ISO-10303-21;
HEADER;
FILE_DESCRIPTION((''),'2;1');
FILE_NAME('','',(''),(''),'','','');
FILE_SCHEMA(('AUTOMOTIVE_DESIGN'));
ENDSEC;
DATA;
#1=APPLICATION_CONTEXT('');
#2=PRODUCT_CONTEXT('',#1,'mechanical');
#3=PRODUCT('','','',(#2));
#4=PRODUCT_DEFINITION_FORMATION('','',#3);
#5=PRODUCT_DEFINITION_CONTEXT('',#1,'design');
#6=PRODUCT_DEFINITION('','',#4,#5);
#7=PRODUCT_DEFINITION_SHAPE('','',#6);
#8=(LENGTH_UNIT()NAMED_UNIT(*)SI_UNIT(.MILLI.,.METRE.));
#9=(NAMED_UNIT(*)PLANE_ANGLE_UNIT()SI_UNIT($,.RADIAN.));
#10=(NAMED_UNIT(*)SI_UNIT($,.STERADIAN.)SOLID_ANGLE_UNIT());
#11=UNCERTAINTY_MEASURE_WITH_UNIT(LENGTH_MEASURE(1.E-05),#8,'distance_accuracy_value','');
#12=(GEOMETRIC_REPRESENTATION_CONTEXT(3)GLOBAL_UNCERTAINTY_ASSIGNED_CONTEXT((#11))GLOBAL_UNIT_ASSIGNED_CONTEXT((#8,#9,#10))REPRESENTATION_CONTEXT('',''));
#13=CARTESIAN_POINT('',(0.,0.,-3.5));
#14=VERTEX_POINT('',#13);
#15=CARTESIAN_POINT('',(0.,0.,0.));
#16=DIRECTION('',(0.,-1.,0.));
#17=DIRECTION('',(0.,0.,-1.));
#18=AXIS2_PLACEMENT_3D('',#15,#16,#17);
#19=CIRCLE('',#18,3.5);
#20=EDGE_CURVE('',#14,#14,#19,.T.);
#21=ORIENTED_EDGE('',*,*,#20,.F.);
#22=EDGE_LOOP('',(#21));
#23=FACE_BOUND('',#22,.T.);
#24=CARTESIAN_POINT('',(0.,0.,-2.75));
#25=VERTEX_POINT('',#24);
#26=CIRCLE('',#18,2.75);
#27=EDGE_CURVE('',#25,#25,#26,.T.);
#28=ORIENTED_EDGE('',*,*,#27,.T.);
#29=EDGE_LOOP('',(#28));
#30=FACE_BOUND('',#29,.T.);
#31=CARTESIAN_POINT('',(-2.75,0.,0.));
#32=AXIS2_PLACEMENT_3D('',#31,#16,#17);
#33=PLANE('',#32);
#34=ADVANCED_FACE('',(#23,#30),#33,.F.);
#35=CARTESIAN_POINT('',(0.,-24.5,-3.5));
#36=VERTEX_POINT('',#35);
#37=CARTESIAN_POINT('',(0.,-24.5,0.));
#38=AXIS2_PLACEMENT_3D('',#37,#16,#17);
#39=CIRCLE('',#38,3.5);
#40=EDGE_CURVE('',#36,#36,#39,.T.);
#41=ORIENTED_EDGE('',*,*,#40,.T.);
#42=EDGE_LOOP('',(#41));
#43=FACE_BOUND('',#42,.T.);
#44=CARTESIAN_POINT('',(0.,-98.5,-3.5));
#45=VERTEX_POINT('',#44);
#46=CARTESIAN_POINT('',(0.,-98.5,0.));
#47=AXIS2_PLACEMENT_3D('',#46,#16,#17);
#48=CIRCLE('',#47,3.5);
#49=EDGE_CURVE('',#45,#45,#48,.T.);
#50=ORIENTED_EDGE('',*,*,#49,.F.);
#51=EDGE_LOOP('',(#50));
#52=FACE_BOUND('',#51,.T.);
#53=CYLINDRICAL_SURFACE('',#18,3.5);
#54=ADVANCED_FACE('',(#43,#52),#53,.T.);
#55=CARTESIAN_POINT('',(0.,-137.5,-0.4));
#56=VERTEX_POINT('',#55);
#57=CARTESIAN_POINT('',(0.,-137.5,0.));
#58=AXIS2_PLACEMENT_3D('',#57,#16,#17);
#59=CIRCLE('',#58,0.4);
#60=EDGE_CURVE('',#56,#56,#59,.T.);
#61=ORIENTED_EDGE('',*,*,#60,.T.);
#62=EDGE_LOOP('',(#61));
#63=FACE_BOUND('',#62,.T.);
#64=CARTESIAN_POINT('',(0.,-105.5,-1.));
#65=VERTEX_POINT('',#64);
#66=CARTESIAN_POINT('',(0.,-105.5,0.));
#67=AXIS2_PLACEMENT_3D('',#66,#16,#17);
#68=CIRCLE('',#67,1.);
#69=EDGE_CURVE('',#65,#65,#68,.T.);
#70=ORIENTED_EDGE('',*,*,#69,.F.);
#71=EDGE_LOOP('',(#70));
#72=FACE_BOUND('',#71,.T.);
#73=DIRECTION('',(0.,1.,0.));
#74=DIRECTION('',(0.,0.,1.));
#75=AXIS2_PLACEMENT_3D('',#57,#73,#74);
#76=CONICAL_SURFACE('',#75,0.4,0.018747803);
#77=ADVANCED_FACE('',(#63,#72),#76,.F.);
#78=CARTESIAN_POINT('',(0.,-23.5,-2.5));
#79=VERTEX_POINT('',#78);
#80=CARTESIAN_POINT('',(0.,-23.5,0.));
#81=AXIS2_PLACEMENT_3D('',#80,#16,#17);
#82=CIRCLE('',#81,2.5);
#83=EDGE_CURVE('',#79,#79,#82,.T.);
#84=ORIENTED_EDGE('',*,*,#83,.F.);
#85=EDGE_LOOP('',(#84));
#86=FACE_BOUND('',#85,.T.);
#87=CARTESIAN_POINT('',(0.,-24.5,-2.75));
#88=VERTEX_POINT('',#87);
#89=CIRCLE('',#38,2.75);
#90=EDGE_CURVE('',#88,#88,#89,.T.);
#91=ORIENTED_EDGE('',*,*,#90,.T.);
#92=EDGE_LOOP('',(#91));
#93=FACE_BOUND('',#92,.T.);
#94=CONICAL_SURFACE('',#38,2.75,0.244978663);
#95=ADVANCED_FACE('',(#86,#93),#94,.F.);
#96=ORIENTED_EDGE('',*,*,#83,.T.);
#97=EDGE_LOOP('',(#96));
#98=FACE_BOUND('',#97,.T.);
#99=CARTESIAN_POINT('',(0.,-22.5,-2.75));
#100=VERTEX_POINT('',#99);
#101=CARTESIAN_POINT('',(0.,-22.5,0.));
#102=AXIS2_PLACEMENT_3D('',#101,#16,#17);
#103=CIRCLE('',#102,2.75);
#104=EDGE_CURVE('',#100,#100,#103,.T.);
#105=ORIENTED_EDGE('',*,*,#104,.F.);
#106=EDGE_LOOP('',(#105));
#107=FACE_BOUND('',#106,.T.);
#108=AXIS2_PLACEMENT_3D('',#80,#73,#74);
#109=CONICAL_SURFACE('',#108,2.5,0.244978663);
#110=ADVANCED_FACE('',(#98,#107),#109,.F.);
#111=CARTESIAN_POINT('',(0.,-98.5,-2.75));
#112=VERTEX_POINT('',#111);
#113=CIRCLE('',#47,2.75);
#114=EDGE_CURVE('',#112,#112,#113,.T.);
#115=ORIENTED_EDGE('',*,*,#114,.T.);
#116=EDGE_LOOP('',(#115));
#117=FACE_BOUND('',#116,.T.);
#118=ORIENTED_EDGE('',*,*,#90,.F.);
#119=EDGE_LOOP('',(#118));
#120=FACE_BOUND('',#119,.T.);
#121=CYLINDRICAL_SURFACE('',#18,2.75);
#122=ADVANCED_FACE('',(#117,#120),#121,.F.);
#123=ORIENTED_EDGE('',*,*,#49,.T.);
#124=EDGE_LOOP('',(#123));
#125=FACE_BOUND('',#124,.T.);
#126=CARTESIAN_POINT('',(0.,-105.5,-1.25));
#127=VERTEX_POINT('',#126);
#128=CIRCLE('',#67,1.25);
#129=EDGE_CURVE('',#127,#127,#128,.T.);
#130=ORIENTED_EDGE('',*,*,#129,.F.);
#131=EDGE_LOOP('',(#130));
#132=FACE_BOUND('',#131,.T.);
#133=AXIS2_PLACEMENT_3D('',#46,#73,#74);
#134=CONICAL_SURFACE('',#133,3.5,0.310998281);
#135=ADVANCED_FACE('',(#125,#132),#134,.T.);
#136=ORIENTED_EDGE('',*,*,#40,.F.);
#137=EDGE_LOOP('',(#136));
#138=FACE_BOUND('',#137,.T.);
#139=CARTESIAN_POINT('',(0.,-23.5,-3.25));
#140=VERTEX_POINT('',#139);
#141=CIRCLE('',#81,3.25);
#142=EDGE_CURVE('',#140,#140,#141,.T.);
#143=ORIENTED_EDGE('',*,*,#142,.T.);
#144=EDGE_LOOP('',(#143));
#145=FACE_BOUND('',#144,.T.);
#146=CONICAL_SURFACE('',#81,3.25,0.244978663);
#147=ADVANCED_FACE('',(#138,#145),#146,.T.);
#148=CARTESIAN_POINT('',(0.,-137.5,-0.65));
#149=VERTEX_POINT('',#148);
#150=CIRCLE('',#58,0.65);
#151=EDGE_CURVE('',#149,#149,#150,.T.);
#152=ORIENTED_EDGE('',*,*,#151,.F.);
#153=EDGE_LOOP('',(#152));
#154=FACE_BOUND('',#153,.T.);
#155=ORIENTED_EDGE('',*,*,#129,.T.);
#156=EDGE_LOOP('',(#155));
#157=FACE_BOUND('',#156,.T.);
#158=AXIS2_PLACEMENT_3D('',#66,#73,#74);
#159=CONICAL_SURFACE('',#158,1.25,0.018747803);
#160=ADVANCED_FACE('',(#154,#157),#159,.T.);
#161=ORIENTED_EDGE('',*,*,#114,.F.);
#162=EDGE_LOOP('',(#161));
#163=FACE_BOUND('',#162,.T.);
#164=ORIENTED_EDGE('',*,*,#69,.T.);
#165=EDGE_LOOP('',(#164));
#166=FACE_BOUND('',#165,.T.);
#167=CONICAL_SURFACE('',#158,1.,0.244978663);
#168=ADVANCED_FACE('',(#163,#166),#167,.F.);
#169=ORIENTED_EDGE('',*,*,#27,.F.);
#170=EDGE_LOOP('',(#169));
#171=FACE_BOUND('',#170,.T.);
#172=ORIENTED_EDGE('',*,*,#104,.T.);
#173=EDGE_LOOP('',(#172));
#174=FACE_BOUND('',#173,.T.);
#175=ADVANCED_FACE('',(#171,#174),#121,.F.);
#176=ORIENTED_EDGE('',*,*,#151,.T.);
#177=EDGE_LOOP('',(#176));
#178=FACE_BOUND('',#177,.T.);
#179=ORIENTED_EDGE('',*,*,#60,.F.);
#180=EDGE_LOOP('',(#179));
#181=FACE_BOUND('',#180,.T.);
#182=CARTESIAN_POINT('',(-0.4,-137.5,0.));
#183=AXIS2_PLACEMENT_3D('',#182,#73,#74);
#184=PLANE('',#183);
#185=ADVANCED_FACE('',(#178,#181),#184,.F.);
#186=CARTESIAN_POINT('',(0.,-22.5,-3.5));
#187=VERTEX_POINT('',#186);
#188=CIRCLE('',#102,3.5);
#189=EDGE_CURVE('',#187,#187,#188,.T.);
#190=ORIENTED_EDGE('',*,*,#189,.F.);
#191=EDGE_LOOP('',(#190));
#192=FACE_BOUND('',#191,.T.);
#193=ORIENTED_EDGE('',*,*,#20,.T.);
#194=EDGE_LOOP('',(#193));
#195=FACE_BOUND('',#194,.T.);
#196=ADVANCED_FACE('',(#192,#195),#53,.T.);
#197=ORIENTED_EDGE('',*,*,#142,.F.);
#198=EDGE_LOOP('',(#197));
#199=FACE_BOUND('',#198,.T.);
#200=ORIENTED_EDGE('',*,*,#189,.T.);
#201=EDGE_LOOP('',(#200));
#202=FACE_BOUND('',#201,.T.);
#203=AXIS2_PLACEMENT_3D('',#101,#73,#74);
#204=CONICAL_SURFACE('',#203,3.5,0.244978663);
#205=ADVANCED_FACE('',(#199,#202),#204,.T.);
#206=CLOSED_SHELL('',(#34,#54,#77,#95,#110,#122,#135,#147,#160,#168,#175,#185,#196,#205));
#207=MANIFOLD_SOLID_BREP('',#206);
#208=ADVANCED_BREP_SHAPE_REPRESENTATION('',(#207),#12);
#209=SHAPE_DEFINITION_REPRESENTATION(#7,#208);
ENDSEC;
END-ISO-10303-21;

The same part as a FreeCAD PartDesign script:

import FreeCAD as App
import Part
import Sketcher
Q = App.Units.Quantity


def add_polygon(sketch, points):
    """Adds a closed chain of lines whose ends are joined by coincident constraints."""
    first, n = sketch.GeometryCount, len(points)
    for a, b in zip(points, points[1:] + points[:1]):
        sketch.addGeometry(Part.LineSegment(App.Vector(*a, 0), App.Vector(*b, 0)), False)
    for i in range(n):
        sketch.addConstraint(Sketcher.Constraint("Coincident", first + i, 2, first + (i + 1) % n, 1))

doc = App.newDocument("Part")
body = doc.addObject("PartDesign::Body", "Body")

# Sketch on XY plane
sketch1 = body.newObject("Sketcher::SketchObject", "Sketch")
sketch1.AttachmentSupport = (doc.getObject("XY_Plane"), [""])
sketch1.MapMode = "FlatFace"
add_polygon(sketch1, [(-2.75, -22.5), (-2.75, 0), (-3.5, 0), (-3.5, -22.5), (-3.25, -23.5), (-3.5, -24.5), (-3.5, -98.5), (-1.25, -105.5), (-0.65, -137.5), (-0.4, -137.5), (-1, -105.5), (-2.75, -98.5), (-2.75, -24.5), (-2.5, -23.5)])  # lines 0-13
sketch1.addConstraint([
    Sketcher.Constraint("Vertical", 0),
    Sketcher.Constraint("Horizontal", 1),
    Sketcher.Constraint("Vertical", 2),
    Sketcher.Constraint("Vertical", 5),
    Sketcher.Constraint("Horizontal", 8),
    Sketcher.Constraint("Vertical", 11),
    Sketcher.Constraint("PointOnObject", 0, 2, -1),
    Sketcher.Constraint("Parallel", 7, 9),
    Sketcher.Constraint("Parallel", 3, 10),
    Sketcher.Constraint("Parallel", 4, 12),
    Sketcher.Constraint("Parallel", 10, 13),
    Sketcher.Constraint("Horizontal", 6, 2, 9, 2),
    Sketcher.Constraint("Horizontal", 5, 2, 10, 2),
    Sketcher.Constraint("Horizontal", 4, 2, 11, 2),
    Sketcher.Constraint("Horizontal", 3, 2, 12, 2),
    Sketcher.Constraint("Horizontal", 2, 2, 13, 2),
    Sketcher.Constraint("Vertical", 2, 2, 4, 2),
    Sketcher.Constraint("Equal", 3, 4),
    Sketcher.Constraint("DistanceY", 5, 2, 5, 1, Q("74 mm")),
    Sketcher.Constraint("DistanceY", 0, 1, 0, 2, Q("22.5 mm")),
    Sketcher.Constraint("DistanceX", 9, 2, -1, 1, Q("1 mm")),
    Sketcher.Constraint("DistanceY", 3, 2, 2, 2, Q("1 mm")),
    Sketcher.Constraint("DistanceY", 6, 2, 5, 2, Q("7 mm")),
    Sketcher.Constraint("DistanceX", 3, 2, 6, 2, Q("2 mm")),
    Sketcher.Constraint("DistanceY", 7, 2, 6, 2, Q("32 mm")),
    Sketcher.Constraint("DistanceX", 2, 2, 12, 2, Q("1 mm")),
    Sketcher.Constraint("DistanceX", 1, 2, 1, 1, Q("0.75 mm")),
    Sketcher.Constraint("DistanceX", 8, 2, -1, 1, Q("0.4 mm")),
])
revolution = body.newObject("PartDesign::Revolution", "Revolution")
revolution.Profile = sketch1
revolution.ReferenceAxis = (sketch1, ["V_Axis"])
revolution.Angle = 360

doc.recompute()
